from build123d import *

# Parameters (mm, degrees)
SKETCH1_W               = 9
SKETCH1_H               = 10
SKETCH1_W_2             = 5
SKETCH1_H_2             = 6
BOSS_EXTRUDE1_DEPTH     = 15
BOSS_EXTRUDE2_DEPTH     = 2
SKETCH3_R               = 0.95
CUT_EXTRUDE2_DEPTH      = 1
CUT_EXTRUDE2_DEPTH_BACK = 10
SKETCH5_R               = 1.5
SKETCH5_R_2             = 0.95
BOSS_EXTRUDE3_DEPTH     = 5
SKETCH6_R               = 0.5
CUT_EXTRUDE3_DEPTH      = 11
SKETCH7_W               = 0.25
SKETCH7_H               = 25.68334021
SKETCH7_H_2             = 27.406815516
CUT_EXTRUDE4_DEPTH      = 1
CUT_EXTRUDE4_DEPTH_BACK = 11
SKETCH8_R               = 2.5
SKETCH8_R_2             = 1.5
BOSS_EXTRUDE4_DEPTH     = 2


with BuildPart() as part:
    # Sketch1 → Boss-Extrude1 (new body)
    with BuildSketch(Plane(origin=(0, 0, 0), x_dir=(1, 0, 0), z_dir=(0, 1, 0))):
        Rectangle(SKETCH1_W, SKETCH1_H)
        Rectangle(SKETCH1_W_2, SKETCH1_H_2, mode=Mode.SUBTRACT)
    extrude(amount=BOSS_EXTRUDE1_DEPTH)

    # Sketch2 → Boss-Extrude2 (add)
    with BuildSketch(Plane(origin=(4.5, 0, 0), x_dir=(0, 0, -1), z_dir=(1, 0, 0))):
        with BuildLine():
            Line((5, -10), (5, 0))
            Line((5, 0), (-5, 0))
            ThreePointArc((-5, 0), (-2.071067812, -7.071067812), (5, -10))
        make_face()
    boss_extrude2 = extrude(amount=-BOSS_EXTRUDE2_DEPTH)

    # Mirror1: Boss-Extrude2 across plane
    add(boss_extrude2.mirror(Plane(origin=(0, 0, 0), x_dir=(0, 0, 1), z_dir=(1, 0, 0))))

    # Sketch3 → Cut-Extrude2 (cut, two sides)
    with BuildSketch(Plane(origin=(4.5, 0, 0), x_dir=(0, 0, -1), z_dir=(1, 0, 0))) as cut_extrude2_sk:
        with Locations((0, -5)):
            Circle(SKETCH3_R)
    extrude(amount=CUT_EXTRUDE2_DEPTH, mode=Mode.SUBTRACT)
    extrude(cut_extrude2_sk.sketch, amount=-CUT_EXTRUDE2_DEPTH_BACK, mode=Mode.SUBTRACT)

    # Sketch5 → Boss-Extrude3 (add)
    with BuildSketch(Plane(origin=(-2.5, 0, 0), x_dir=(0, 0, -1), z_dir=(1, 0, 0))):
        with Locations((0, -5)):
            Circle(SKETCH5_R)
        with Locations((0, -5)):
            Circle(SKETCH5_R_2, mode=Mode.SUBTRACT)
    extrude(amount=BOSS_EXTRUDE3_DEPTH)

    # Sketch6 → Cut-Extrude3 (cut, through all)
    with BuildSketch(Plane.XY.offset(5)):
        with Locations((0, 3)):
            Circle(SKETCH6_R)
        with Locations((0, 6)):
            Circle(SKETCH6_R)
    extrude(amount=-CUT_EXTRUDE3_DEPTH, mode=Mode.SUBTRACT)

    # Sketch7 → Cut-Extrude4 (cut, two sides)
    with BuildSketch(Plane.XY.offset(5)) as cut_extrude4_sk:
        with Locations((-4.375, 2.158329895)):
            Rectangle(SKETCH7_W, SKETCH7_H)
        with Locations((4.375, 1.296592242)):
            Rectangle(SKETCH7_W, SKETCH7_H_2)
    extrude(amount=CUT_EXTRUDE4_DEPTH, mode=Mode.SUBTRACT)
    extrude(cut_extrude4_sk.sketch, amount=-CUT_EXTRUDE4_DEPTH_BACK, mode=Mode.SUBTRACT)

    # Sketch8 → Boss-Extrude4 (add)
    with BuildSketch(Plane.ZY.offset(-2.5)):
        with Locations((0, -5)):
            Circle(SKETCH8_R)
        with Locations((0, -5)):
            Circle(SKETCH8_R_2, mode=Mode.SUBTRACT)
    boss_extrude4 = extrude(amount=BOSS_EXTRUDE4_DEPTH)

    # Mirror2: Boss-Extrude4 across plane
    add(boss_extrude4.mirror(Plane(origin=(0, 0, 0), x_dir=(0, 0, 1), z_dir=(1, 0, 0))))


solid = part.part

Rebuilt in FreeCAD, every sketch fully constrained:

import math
import FreeCAD as App
import Part
import Sketcher
Q = App.Units.Quantity


def add_polygon(sketch, points):
    """Adds a closed chain of lines whose ends are joined by coincident constraints."""
    first, n = sketch.GeometryCount, len(points)
    for a, b in zip(points, points[1:] + points[:1]):
        sketch.addGeometry(Part.LineSegment(App.Vector(*a, 0), App.Vector(*b, 0)), False)
    for i in range(n):
        sketch.addConstraint(Sketcher.Constraint("Coincident", first + i, 2, first + (i + 1) % n, 1))

doc = App.newDocument("Part")
body = doc.addObject("PartDesign::Body", "Body")

# Sketch on XZ plane
sketch1 = body.newObject("Sketcher::SketchObject", "Sketch")
sketch1.AttachmentSupport = (doc.getObject("XZ_Plane"), [""])
sketch1.MapMode = "FlatFace"
add_polygon(sketch1, [(-4.5, -5), (-4.5, 5), (4.5, 5), (4.5, -5)])  # lines 0-3
add_polygon(sketch1, [(2.5, 3), (-2.5, 3), (-2.5, -3), (2.5, -3)])  # lines 4-7
sketch1.addConstraint([
    Sketcher.Constraint("Vertical", 0),
    Sketcher.Constraint("Horizontal", 1),
    Sketcher.Constraint("Vertical", 2),
    Sketcher.Constraint("Horizontal", 3),
    Sketcher.Constraint("Horizontal", 4),
    Sketcher.Constraint("Vertical", 5),
    Sketcher.Constraint("Horizontal", 6),
    Sketcher.Constraint("Vertical", 7),
    Sketcher.Constraint("Symmetric", 0, 2, 2, 2, -1, 1),
    Sketcher.Constraint("Symmetric", 4, 2, 6, 2, -1, 1),
    Sketcher.Constraint("DistanceX", 1, 1, 1, 2, Q("9 mm")),
    Sketcher.Constraint("DistanceX", 4, 2, 4, 1, Q("5 mm")),
    Sketcher.Constraint("DistanceY", 0, 1, 0, 2, Q("10 mm")),
    Sketcher.Constraint("DistanceY", 5, 2, 5, 1, Q("6 mm")),
])
pad1 = body.newObject("PartDesign::Pad", "Pad")
pad1.Profile = sketch1
pad1.Length = 15
pad1.Reversed = True

# Sketch on YZ plane
sketch2 = body.newObject("Sketcher::SketchObject", "Sketch001")
sketch2.AttachmentSupport = (doc.getObject("YZ_Plane"), [""])
sketch2.MapMode = "FlatFace"
sketch2.AttachmentOffset = App.Placement(App.Vector(0, 0, 4.5), App.Rotation())
sketch2.addGeometry([
    Part.LineSegment(App.Vector(-10, -5, 0), App.Vector(0, -5, 0)),
    Part.LineSegment(App.Vector(0, -5, 0), App.Vector(0, 5, 0)),
    Part.ArcOfCircle(Part.Circle(App.Vector(0, -5, 0), App.Vector(0, 0, 1), 10), math.radians(90), math.radians(180)),
], False)
sketch2.addConstraint([
    Sketcher.Constraint("Coincident", 0, 2, 1, 1),
    Sketcher.Constraint("Coincident", 1, 2, 2, 1),
    Sketcher.Constraint("Coincident", 2, 2, 0, 1),
    Sketcher.Constraint("Horizontal", 0),
    Sketcher.Constraint("Vertical", 1),
    Sketcher.Constraint("Coincident", 0, 2, 2, 3),
    Sketcher.Constraint("Symmetric", 0, 2, 1, 2, -1, 1),
    Sketcher.Constraint("Radius", 2, Q("10 mm")),
])
pad2 = body.newObject("PartDesign::Pad", "Pad001")
pad2.Profile = sketch2
pad2.Length = 2
pad2.Reversed = True
doc.recompute()

mirrored = body.newObject("PartDesign::Mirrored", "Mirrored")
mirrored.Originals = [pad2]
mirrored.MirrorPlane = (doc.getObject("YZ_Plane"), [""])
body.Tip = mirrored

# Sketch on YZ plane
sketch3 = body.newObject("Sketcher::SketchObject", "Sketch002")
sketch3.AttachmentSupport = (doc.getObject("YZ_Plane"), [""])
sketch3.MapMode = "FlatFace"
sketch3.AttachmentOffset = App.Placement(App.Vector(0, 0, 4.5), App.Rotation())
sketch3.addGeometry(Part.Circle(App.Vector(-5, 0, 0), App.Vector(0, 0, 1), 0.95), False)
sketch3.addConstraint([
    Sketcher.Constraint("PointOnObject", 0, 3, -1),
    Sketcher.Constraint("Diameter", 0, Q("1.9 mm")),
    Sketcher.Constraint("DistanceX", 0, 3, -1, 1, Q("5 mm")),
])
pocket1 = body.newObject("PartDesign::Pocket", "Pocket")
pocket1.Profile = sketch3
pocket1.Type = "ThroughAll"
pocket1.Midplane = True

# Sketch on YZ plane
sketch4 = body.newObject("Sketcher::SketchObject", "Sketch003")
sketch4.AttachmentSupport = (doc.getObject("YZ_Plane"), [""])
sketch4.MapMode = "FlatFace"
sketch4.AttachmentOffset = App.Placement(App.Vector(0, 0, -2.5), App.Rotation())
sketch4.addGeometry([
    Part.Circle(App.Vector(-5, 0, 0), App.Vector(0, 0, 1), 1.5),
    Part.Circle(App.Vector(-5, 0, 0), App.Vector(0, 0, 1), 0.95),
], False)
sketch4.addConstraint([
    Sketcher.Constraint("Coincident", 1, 3, 0, 3),
    Sketcher.Constraint("PointOnObject", 0, 3, -1),
    Sketcher.Constraint("Diameter", 0, Q("3 mm")),
    Sketcher.Constraint("Diameter", 1, Q("1.9 mm")),
    Sketcher.Constraint("DistanceX", 0, 3, -1, 1, Q("5 mm")),
])
pad3 = body.newObject("PartDesign::Pad", "Pad002")
pad3.Profile = sketch4
pad3.Length = 5

# Sketch on XY plane
sketch5 = body.newObject("Sketcher::SketchObject", "Sketch004")
sketch5.AttachmentSupport = (doc.getObject("XY_Plane"), [""])
sketch5.MapMode = "FlatFace"
sketch5.AttachmentOffset = App.Placement(App.Vector(0, 0, 5), App.Rotation())
sketch5.addGeometry([
    Part.Circle(App.Vector(0, 3, 0), App.Vector(0, 0, 1), 0.5),
    Part.Circle(App.Vector(0, 6, 0), App.Vector(0, 0, 1), 0.5),
], False)
sketch5.addConstraint([
    Sketcher.Constraint("Equal", 0, 1),
    Sketcher.Constraint("PointOnObject", 0, 3, -2),
    Sketcher.Constraint("PointOnObject", 1, 3, -2),
    Sketcher.Constraint("Diameter", 0, Q("1 mm")),
    Sketcher.Constraint("DistanceY", -1, 1, 0, 3, Q("3 mm")),
    Sketcher.Constraint("DistanceY", -1, 1, 1, 3, Q("6 mm")),
])
pocket2 = body.newObject("PartDesign::Pocket", "Pocket001")
pocket2.Profile = sketch5
pocket2.Type = "ThroughAll"

# Sketch on XY plane
sketch6 = body.newObject("Sketcher::SketchObject", "Sketch005")
sketch6.AttachmentSupport = (doc.getObject("XY_Plane"), [""])
sketch6.MapMode = "FlatFace"
sketch6.AttachmentOffset = App.Placement(App.Vector(0, 0, 5), App.Rotation())
add_polygon(sketch6, [(-4.5, 15), (-4.5, -10.68334), (-4.25, -10.68334), (-4.25, 15)])  # lines 0-3
add_polygon(sketch6, [(4.25, 15), (4.25, -12.406816), (4.5, -12.406816), (4.5, 15)])  # lines 4-7
sketch6.addConstraint([
    Sketcher.Constraint("Vertical", 0),
    Sketcher.Constraint("Horizontal", 1),
    Sketcher.Constraint("Vertical", 2),
    Sketcher.Constraint("Horizontal", 3),
    Sketcher.Constraint("Vertical", 4),
    Sketcher.Constraint("Horizontal", 5),
    Sketcher.Constraint("Vertical", 6),
    Sketcher.Constraint("Horizontal", 7),
    Sketcher.Constraint("Symmetric", 3, 2, 6, 2, -2),
    Sketcher.Constraint("Equal", 3, 5),
    Sketcher.Constraint("DistanceY", -1, 1, 2, 2, Q("15 mm")),
    Sketcher.Constraint("DistanceX", 0, 2, 5, 2, Q("9 mm")),
    Sketcher.Constraint("DistanceX", 1, 1, 1, 2, Q("0.25 mm")),
    Sketcher.Constraint("DistanceY", 0, 2, 0, 1, Q("25.68334 mm")),
    Sketcher.Constraint("DistanceY", 4, 2, 4, 1, Q("27.406816 mm")),
])
pocket3 = body.newObject("PartDesign::Pocket", "Pocket002")
pocket3.Profile = sketch6
pocket3.Type = "ThroughAll"
pocket3.Midplane = True

# Sketch on YZ plane
sketch7 = body.newObject("Sketcher::SketchObject", "Sketch006")
sketch7.AttachmentSupport = (doc.getObject("YZ_Plane"), [""])
sketch7.MapMode = "FlatFace"
sketch7.AttachmentOffset = App.Placement(App.Vector(0, 0, 2.5), App.Rotation())
sketch7.addGeometry([
    Part.Circle(App.Vector(-5, 0, 0), App.Vector(0, 0, 1), 2.5),
    Part.Circle(App.Vector(-5, 0, 0), App.Vector(0, 0, 1), 1.5),
], False)
sketch7.addConstraint([
    Sketcher.Constraint("Coincident", 1, 3, 0, 3),
    Sketcher.Constraint("PointOnObject", 0, 3, -1),
    Sketcher.Constraint("Diameter", 0, Q("5 mm")),
    Sketcher.Constraint("Diameter", 1, Q("3 mm")),
    Sketcher.Constraint("DistanceX", 0, 3, -1, 1, Q("5 mm")),
])
pad4 = body.newObject("PartDesign::Pad", "Pad003")
pad4.Profile = sketch7
pad4.Length = 2
pad4.Reversed = True
doc.recompute()

mirrored2 = body.newObject("PartDesign::Mirrored", "Mirrored001")
mirrored2.Originals = [pad4]
mirrored2.MirrorPlane = (doc.getObject("YZ_Plane"), [""])
body.Tip = mirrored2

doc.recompute()
